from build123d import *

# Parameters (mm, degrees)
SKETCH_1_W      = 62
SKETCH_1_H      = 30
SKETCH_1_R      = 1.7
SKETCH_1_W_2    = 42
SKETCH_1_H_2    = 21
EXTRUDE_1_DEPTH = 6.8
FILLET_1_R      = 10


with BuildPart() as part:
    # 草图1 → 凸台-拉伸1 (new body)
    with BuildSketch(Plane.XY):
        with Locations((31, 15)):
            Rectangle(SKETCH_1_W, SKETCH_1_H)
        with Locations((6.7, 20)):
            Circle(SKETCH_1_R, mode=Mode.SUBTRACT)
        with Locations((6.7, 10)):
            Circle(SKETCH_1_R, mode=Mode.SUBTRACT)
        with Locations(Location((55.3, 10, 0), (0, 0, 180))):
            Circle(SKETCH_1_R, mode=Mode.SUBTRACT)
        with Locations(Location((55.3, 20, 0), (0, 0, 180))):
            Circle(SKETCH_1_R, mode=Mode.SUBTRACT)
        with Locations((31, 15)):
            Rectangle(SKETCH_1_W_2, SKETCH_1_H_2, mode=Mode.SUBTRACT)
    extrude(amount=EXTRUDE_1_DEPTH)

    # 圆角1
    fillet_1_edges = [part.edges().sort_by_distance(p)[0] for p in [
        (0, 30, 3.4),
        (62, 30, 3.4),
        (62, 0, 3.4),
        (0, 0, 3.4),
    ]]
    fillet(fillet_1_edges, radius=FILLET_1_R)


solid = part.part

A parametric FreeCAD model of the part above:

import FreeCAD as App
import Part
import Sketcher

V = App.Vector


def edges_at(feature, points):
    """Names of the edges that pass closest to the given points."""
    edges = feature.Shape.Edges
    near = lambda p: min(range(len(edges)), key=lambda i: edges[i].distToShape(Part.Vertex(*p))[0])
    return sorted({f"Edge{near(p) + 1}" for p in points})

doc = App.newDocument("Part")
body = doc.addObject("PartDesign::Body", "Body")

# Sketch on XY plane
sketch1 = body.newObject("Sketcher::SketchObject", "Sketch")
sketch1.AttachmentSupport = (doc.getObject("XY_Plane"), [""])
sketch1.MapMode = "FlatFace"
sketch1.addGeometry(Part.LineSegment(V(0, 30, 0), V(0, 0, 0)), False)
sketch1.addGeometry(Part.LineSegment(V(0, 0, 0), V(62, 0, 0)), False)
sketch1.addGeometry(Part.LineSegment(V(62, 0, 0), V(62, 30, 0)), False)
sketch1.addGeometry(Part.LineSegment(V(62, 30, 0), V(0, 30, 0)), False)
sketch1.addGeometry(Part.Circle(V(6.7, 10, 0), V(0, 0, 1), 1.7), False)
sketch1.addGeometry(Part.Circle(V(55.3, 10, 0), V(0, 0, 1), 1.7), False)
sketch1.addGeometry(Part.Circle(V(6.7, 20, 0), V(0, 0, 1), 1.7), False)
sketch1.addGeometry(Part.LineSegment(V(52, 4.5, 0), V(10, 4.5, 0)), False)
sketch1.addGeometry(Part.LineSegment(V(10, 4.5, 0), V(10, 25.5, 0)), False)
sketch1.addGeometry(Part.LineSegment(V(10, 25.5, 0), V(52, 25.5, 0)), False)
sketch1.addGeometry(Part.LineSegment(V(52, 25.5, 0), V(52, 4.5, 0)), False)
sketch1.addGeometry(Part.Circle(V(55.3, 20, 0), V(0, 0, 1), 1.7), False)
sketch1.addConstraint(Sketcher.Constraint("Coincident", 0, 2, 1, 1))
sketch1.addConstraint(Sketcher.Constraint("Coincident", 1, 2, 2, 1))
sketch1.addConstraint(Sketcher.Constraint("Coincident", 2, 2, 3, 1))
sketch1.addConstraint(Sketcher.Constraint("Coincident", 3, 2, 0, 1))
sketch1.addConstraint(Sketcher.Constraint("Coincident", 7, 2, 8, 1))
sketch1.addConstraint(Sketcher.Constraint("Coincident", 8, 2, 9, 1))
sketch1.addConstraint(Sketcher.Constraint("Coincident", 9, 2, 10, 1))
sketch1.addConstraint(Sketcher.Constraint("Coincident", 10, 2, 7, 1))
sketch1.addConstraint(Sketcher.Constraint("Vertical", 0))
sketch1.addConstraint(Sketcher.Constraint("Horizontal", 1))
sketch1.addConstraint(Sketcher.Constraint("Vertical", 2))
sketch1.addConstraint(Sketcher.Constraint("Horizontal", 3))
sketch1.addConstraint(Sketcher.Constraint("Horizontal", 7))
sketch1.addConstraint(Sketcher.Constraint("Vertical", 8))
sketch1.addConstraint(Sketcher.Constraint("Horizontal", 9))
sketch1.addConstraint(Sketcher.Constraint("Vertical", 10))
sketch1.addConstraint(Sketcher.Constraint("Coincident", 0, 2, -1, 1))
sketch1.addConstraint(Sketcher.Constraint("Equal", 4, 5))
sketch1.addConstraint(Sketcher.Constraint("Equal", 5, 6))
sketch1.addConstraint(Sketcher.Constraint("Equal", 6, 11))
sketch1.addConstraint(Sketcher.Constraint("Horizontal", 4, 3, 5, 3))
sketch1.addConstraint(Sketcher.Constraint("Horizontal", 6, 3, 11, 3))
sketch1.addConstraint(Sketcher.Constraint("Vertical", 4, 3, 6, 3))
sketch1.addConstraint(Sketcher.Constraint("Vertical", 5, 3, 11, 3))
sketch1.addConstraint(Sketcher.Constraint("Diameter", 4, 3.4))
sketch1.addConstraint(Sketcher.Constraint("DistanceX", 1, 1, 1, 2, 62.0))
sketch1.addConstraint(Sketcher.Constraint("DistanceX", 7, 2, 7, 1, 42.0))
sketch1.addConstraint(Sketcher.Constraint("DistanceY", 0, 2, 0, 1, 30.0))
sketch1.addConstraint(Sketcher.Constraint("DistanceY", 8, 1, 8, 2, 21.0))
sketch1.addConstraint(Sketcher.Constraint("DistanceY", -1, 1, 4, 3, 10.0))
sketch1.addConstraint(Sketcher.Constraint("DistanceY", -1, 1, 6, 3, 20.0))
sketch1.addConstraint(Sketcher.Constraint("DistanceX", -1, 1, 7, 2, 10.0))
sketch1.addConstraint(Sketcher.Constraint("DistanceX", -1, 1, 4, 3, 6.7))
sketch1.addConstraint(Sketcher.Constraint("DistanceX", -1, 1, 5, 3, 55.3))
sketch1.addConstraint(Sketcher.Constraint("DistanceY", -1, 1, 7, 2, 4.5))
pad1 = body.newObject("PartDesign::Pad", "Pad")
pad1.Profile = sketch1
pad1.Length = 6.8
doc.recompute()

fillet = body.newObject("PartDesign::Fillet", "Fillet")
fillet.Base = (pad1, edges_at(pad1, [
    (0, 30, 3.4),
    (62, 30, 3.4),
    (62, 0, 3.4),
    (0, 0, 3.4),
]))
fillet.Radius = 10

doc.recompute()
